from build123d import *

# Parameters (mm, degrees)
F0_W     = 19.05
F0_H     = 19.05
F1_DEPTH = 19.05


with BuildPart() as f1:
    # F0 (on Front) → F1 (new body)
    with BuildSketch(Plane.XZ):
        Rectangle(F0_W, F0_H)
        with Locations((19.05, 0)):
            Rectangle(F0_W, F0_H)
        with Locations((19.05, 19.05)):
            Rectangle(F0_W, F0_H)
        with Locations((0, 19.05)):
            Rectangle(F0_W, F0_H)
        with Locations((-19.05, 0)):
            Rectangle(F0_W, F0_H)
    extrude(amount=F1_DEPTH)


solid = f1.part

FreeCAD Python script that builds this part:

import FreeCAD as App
import Part
import Sketcher

V = App.Vector
Q = App.Units.Quantity


def add_polygon(sketch, points):
    """Adds a closed chain of lines whose ends are joined by coincident constraints."""
    first, n = sketch.GeometryCount, len(points)
    for a, b in zip(points, points[1:] + points[:1]):
        sketch.addGeometry(Part.LineSegment(App.Vector(*a, 0), App.Vector(*b, 0)), False)
    for i in range(n):
        sketch.addConstraint(Sketcher.Constraint("Coincident", first + i, 2, first + (i + 1) % n, 1))

doc = App.newDocument("Part")
body = doc.addObject("PartDesign::Body", "Body")

sketch1 = body.newObject("Sketcher::SketchObject", "Sketch")
sketch1.AttachmentSupport = (doc.getObject("XZ_Plane"), [""])
sketch1.MapMode = "FlatFace"
add_polygon(sketch1, [(29, -10), (29, 29), (-10, 29), (-10, 10), (-29, 10), (-29, -10)])
sketch1.addConstraint([
    Sketcher.Constraint("Vertical", 0),
    Sketcher.Constraint("Horizontal", 1),
    Sketcher.Constraint("Vertical", 2),
    Sketcher.Constraint("Horizontal", 3),
    Sketcher.Constraint("Vertical", 4),
    Sketcher.Constraint("Horizontal", 5),
    Sketcher.Constraint("Symmetric", 3, 2, 5, 2, -1, 1),
    Sketcher.Constraint("Equal", 1, 0),
    Sketcher.Constraint("Equal", 3, 2),
    Sketcher.Constraint("Equal", 2, 4),
    Sketcher.Constraint("DistanceX", 1, 2, 1, 1, Q("1.5 in")),
])
pad1 = body.newObject("PartDesign::Pad", "Pad")
pad1.Profile = sketch1
pad1.Length = Q("0.75 in")

doc.recompute()
